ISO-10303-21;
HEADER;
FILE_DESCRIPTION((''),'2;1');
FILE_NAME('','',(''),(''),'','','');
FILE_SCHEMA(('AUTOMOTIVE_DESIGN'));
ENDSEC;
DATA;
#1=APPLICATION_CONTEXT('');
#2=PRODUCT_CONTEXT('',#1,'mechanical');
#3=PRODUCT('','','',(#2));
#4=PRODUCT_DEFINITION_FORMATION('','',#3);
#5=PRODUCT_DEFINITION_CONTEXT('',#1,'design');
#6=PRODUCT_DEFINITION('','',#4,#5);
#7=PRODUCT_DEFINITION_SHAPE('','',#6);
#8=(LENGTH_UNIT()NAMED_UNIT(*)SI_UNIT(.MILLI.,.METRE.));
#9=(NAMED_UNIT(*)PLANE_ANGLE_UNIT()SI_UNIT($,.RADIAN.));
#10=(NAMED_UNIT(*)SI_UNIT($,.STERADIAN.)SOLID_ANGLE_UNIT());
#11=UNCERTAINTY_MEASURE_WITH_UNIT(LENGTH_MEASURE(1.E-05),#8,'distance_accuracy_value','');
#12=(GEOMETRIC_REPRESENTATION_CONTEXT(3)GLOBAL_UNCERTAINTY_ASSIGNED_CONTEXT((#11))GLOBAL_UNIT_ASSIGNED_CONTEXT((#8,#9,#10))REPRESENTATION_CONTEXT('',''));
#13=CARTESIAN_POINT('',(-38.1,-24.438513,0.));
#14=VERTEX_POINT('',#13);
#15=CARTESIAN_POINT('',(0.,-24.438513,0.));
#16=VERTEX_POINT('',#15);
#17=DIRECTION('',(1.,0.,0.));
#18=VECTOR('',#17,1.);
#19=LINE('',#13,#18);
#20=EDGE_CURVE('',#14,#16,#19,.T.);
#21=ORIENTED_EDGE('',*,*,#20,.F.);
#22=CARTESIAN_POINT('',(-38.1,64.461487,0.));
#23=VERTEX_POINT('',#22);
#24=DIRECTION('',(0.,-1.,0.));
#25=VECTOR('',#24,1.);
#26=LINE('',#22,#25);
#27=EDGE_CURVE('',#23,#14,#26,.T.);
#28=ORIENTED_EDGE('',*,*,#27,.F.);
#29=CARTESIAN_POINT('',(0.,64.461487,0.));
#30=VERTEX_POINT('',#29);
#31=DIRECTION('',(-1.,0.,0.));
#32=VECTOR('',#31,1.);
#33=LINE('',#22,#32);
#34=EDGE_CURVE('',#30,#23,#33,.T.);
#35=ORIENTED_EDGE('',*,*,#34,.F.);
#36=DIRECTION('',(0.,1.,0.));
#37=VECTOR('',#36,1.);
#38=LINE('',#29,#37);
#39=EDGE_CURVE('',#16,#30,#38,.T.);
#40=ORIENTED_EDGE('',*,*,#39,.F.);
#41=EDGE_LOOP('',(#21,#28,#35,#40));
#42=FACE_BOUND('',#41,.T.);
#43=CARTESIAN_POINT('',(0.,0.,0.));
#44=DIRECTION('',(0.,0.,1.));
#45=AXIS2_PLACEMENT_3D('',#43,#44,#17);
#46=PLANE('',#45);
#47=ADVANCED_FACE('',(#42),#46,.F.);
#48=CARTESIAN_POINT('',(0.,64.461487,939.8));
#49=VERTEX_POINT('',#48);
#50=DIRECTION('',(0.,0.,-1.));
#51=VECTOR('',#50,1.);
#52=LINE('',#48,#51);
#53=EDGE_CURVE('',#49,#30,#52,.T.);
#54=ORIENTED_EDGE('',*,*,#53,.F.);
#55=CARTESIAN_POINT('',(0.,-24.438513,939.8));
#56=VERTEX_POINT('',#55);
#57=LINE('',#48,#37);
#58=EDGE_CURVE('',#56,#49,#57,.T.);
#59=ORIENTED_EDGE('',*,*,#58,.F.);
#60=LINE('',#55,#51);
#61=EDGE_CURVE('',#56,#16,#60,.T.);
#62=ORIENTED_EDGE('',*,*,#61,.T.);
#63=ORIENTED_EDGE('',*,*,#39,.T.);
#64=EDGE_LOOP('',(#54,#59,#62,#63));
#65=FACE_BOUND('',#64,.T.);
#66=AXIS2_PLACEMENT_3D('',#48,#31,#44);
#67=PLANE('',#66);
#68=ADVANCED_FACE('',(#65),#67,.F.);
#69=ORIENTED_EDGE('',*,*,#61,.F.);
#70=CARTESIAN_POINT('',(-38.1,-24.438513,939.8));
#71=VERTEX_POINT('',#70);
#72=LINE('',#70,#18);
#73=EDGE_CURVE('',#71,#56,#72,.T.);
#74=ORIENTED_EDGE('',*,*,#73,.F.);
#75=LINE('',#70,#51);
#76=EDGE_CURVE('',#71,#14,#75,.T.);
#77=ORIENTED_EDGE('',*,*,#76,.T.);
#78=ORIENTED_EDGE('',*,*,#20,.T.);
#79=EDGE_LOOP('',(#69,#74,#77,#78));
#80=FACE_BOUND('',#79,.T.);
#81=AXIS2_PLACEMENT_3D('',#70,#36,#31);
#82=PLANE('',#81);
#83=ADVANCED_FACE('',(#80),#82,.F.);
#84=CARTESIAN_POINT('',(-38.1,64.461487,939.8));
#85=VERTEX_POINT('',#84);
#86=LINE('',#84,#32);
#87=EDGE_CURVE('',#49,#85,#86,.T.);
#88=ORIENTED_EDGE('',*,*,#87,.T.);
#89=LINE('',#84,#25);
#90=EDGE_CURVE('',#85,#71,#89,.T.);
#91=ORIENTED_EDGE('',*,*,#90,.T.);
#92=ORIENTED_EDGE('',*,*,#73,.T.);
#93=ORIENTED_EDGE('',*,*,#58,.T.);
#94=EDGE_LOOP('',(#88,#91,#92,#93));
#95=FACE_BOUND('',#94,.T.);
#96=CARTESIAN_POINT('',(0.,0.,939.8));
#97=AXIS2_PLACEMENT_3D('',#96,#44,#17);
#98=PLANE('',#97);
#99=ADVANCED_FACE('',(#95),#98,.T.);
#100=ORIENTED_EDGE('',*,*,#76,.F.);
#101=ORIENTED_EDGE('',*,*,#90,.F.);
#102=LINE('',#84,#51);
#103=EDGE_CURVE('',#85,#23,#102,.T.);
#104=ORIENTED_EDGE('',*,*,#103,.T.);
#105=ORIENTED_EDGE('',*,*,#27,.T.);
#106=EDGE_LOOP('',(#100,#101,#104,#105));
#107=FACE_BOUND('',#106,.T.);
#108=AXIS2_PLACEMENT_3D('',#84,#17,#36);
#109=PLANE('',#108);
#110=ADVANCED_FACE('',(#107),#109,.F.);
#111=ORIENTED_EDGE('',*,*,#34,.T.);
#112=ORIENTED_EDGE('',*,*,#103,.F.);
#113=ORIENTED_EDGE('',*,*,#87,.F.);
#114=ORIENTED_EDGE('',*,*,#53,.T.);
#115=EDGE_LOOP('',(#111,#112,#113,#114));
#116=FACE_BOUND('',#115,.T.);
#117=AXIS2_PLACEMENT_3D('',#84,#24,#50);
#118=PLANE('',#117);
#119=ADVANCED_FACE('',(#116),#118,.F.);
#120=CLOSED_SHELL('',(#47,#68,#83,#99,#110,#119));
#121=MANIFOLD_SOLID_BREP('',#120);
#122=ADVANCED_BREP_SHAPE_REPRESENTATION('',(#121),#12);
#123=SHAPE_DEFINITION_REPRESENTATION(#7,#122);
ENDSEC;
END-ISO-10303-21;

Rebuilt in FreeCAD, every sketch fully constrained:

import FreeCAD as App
import Part
import Sketcher

V = App.Vector
Q = App.Units.Quantity

doc = App.newDocument("Part")
body = doc.addObject("PartDesign::Body", "Body")

# Sketch on XY plane
sketch1 = doc.addObject("Sketcher::SketchObject", "Sketch")
body.addObject(sketch1)
sketch1.AttachmentSupport = (doc.XY_Plane, [""])
sketch1.MapMode = "FlatFace"
sketch1.addGeometry([
    Part.LineSegment(V(-38, 64, 0), V(-38, -24, 0)),
    Part.LineSegment(V(-38, -24, 0), V(0, -24, 0)),
    Part.LineSegment(V(0, -24, 0), V(0, 64, 0)),
    Part.LineSegment(V(0, 64, 0), V(-38, 64, 0)),
], False)
sketch1.addConstraint([
    Sketcher.Constraint("Coincident", 0, 2, 1, 1),
    Sketcher.Constraint("Coincident", 1, 2, 2, 1),
    Sketcher.Constraint("Coincident", 2, 2, 3, 1),
    Sketcher.Constraint("Coincident", 3, 2, 0, 1),
    Sketcher.Constraint("Vertical", 0),
    Sketcher.Constraint("Horizontal", 1),
    Sketcher.Constraint("Vertical", 2),
    Sketcher.Constraint("Horizontal", 3),
    Sketcher.Constraint("PointOnObject", 1, 2, -2),
    Sketcher.Constraint("DistanceX", 1, 1, 1, 2, Q("1.5 in")),
    Sketcher.Constraint("DistanceY", 0, 2, 0, 1, Q("3.5 in")),
    Sketcher.Constraint("DistanceY", 0, 2, -1, 1, 24.438513),
])
pad1 = doc.addObject("PartDesign::Pad", "Pad")
body.addObject(pad1)
pad1.Profile = sketch1
pad1.Length = Q("37 in")

doc.recompute()
